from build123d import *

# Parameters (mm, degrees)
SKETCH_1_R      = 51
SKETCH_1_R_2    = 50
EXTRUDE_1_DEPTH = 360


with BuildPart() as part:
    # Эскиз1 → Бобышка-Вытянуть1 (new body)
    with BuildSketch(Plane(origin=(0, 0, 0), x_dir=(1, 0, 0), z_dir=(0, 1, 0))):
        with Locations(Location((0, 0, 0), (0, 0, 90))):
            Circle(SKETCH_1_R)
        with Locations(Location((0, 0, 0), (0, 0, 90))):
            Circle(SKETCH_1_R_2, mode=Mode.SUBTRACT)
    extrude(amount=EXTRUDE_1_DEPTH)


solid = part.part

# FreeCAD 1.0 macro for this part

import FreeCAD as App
import Part
import Sketcher
from FreeCAD import Vector
Q = App.Units.Quantity

doc = App.newDocument("Part")
body = doc.addObject("PartDesign::Body", "Body")

sketch1 = body.newObject("Sketcher::SketchObject", "Sketch")
sketch1.AttachmentSupport = (doc.getObject("XZ_Plane"), [""])
sketch1.MapMode = "FlatFace"
sketch1.addGeometry(Part.Circle(Vector(0, 0, 0), Vector(0, 0, 1), 51), False)
sketch1.addGeometry(Part.Circle(Vector(0, 0, 0), Vector(0, 0, 1), 50), False)
sketch1.addConstraint(Sketcher.Constraint("Coincident", 0, 3, -1, 1))
sketch1.addConstraint(Sketcher.Constraint("Coincident", 1, 3, -1, 1))
sketch1.addConstraint(Sketcher.Constraint("Diameter", 0, Q("102 mm")))
sketch1.addConstraint(Sketcher.Constraint("Diameter", 1, Q("100 mm")))
pad1 = body.newObject("PartDesign::Pad", "Pad")
pad1.Profile = sketch1
pad1.Length = 360
pad1.Reversed = True

doc.recompute()
